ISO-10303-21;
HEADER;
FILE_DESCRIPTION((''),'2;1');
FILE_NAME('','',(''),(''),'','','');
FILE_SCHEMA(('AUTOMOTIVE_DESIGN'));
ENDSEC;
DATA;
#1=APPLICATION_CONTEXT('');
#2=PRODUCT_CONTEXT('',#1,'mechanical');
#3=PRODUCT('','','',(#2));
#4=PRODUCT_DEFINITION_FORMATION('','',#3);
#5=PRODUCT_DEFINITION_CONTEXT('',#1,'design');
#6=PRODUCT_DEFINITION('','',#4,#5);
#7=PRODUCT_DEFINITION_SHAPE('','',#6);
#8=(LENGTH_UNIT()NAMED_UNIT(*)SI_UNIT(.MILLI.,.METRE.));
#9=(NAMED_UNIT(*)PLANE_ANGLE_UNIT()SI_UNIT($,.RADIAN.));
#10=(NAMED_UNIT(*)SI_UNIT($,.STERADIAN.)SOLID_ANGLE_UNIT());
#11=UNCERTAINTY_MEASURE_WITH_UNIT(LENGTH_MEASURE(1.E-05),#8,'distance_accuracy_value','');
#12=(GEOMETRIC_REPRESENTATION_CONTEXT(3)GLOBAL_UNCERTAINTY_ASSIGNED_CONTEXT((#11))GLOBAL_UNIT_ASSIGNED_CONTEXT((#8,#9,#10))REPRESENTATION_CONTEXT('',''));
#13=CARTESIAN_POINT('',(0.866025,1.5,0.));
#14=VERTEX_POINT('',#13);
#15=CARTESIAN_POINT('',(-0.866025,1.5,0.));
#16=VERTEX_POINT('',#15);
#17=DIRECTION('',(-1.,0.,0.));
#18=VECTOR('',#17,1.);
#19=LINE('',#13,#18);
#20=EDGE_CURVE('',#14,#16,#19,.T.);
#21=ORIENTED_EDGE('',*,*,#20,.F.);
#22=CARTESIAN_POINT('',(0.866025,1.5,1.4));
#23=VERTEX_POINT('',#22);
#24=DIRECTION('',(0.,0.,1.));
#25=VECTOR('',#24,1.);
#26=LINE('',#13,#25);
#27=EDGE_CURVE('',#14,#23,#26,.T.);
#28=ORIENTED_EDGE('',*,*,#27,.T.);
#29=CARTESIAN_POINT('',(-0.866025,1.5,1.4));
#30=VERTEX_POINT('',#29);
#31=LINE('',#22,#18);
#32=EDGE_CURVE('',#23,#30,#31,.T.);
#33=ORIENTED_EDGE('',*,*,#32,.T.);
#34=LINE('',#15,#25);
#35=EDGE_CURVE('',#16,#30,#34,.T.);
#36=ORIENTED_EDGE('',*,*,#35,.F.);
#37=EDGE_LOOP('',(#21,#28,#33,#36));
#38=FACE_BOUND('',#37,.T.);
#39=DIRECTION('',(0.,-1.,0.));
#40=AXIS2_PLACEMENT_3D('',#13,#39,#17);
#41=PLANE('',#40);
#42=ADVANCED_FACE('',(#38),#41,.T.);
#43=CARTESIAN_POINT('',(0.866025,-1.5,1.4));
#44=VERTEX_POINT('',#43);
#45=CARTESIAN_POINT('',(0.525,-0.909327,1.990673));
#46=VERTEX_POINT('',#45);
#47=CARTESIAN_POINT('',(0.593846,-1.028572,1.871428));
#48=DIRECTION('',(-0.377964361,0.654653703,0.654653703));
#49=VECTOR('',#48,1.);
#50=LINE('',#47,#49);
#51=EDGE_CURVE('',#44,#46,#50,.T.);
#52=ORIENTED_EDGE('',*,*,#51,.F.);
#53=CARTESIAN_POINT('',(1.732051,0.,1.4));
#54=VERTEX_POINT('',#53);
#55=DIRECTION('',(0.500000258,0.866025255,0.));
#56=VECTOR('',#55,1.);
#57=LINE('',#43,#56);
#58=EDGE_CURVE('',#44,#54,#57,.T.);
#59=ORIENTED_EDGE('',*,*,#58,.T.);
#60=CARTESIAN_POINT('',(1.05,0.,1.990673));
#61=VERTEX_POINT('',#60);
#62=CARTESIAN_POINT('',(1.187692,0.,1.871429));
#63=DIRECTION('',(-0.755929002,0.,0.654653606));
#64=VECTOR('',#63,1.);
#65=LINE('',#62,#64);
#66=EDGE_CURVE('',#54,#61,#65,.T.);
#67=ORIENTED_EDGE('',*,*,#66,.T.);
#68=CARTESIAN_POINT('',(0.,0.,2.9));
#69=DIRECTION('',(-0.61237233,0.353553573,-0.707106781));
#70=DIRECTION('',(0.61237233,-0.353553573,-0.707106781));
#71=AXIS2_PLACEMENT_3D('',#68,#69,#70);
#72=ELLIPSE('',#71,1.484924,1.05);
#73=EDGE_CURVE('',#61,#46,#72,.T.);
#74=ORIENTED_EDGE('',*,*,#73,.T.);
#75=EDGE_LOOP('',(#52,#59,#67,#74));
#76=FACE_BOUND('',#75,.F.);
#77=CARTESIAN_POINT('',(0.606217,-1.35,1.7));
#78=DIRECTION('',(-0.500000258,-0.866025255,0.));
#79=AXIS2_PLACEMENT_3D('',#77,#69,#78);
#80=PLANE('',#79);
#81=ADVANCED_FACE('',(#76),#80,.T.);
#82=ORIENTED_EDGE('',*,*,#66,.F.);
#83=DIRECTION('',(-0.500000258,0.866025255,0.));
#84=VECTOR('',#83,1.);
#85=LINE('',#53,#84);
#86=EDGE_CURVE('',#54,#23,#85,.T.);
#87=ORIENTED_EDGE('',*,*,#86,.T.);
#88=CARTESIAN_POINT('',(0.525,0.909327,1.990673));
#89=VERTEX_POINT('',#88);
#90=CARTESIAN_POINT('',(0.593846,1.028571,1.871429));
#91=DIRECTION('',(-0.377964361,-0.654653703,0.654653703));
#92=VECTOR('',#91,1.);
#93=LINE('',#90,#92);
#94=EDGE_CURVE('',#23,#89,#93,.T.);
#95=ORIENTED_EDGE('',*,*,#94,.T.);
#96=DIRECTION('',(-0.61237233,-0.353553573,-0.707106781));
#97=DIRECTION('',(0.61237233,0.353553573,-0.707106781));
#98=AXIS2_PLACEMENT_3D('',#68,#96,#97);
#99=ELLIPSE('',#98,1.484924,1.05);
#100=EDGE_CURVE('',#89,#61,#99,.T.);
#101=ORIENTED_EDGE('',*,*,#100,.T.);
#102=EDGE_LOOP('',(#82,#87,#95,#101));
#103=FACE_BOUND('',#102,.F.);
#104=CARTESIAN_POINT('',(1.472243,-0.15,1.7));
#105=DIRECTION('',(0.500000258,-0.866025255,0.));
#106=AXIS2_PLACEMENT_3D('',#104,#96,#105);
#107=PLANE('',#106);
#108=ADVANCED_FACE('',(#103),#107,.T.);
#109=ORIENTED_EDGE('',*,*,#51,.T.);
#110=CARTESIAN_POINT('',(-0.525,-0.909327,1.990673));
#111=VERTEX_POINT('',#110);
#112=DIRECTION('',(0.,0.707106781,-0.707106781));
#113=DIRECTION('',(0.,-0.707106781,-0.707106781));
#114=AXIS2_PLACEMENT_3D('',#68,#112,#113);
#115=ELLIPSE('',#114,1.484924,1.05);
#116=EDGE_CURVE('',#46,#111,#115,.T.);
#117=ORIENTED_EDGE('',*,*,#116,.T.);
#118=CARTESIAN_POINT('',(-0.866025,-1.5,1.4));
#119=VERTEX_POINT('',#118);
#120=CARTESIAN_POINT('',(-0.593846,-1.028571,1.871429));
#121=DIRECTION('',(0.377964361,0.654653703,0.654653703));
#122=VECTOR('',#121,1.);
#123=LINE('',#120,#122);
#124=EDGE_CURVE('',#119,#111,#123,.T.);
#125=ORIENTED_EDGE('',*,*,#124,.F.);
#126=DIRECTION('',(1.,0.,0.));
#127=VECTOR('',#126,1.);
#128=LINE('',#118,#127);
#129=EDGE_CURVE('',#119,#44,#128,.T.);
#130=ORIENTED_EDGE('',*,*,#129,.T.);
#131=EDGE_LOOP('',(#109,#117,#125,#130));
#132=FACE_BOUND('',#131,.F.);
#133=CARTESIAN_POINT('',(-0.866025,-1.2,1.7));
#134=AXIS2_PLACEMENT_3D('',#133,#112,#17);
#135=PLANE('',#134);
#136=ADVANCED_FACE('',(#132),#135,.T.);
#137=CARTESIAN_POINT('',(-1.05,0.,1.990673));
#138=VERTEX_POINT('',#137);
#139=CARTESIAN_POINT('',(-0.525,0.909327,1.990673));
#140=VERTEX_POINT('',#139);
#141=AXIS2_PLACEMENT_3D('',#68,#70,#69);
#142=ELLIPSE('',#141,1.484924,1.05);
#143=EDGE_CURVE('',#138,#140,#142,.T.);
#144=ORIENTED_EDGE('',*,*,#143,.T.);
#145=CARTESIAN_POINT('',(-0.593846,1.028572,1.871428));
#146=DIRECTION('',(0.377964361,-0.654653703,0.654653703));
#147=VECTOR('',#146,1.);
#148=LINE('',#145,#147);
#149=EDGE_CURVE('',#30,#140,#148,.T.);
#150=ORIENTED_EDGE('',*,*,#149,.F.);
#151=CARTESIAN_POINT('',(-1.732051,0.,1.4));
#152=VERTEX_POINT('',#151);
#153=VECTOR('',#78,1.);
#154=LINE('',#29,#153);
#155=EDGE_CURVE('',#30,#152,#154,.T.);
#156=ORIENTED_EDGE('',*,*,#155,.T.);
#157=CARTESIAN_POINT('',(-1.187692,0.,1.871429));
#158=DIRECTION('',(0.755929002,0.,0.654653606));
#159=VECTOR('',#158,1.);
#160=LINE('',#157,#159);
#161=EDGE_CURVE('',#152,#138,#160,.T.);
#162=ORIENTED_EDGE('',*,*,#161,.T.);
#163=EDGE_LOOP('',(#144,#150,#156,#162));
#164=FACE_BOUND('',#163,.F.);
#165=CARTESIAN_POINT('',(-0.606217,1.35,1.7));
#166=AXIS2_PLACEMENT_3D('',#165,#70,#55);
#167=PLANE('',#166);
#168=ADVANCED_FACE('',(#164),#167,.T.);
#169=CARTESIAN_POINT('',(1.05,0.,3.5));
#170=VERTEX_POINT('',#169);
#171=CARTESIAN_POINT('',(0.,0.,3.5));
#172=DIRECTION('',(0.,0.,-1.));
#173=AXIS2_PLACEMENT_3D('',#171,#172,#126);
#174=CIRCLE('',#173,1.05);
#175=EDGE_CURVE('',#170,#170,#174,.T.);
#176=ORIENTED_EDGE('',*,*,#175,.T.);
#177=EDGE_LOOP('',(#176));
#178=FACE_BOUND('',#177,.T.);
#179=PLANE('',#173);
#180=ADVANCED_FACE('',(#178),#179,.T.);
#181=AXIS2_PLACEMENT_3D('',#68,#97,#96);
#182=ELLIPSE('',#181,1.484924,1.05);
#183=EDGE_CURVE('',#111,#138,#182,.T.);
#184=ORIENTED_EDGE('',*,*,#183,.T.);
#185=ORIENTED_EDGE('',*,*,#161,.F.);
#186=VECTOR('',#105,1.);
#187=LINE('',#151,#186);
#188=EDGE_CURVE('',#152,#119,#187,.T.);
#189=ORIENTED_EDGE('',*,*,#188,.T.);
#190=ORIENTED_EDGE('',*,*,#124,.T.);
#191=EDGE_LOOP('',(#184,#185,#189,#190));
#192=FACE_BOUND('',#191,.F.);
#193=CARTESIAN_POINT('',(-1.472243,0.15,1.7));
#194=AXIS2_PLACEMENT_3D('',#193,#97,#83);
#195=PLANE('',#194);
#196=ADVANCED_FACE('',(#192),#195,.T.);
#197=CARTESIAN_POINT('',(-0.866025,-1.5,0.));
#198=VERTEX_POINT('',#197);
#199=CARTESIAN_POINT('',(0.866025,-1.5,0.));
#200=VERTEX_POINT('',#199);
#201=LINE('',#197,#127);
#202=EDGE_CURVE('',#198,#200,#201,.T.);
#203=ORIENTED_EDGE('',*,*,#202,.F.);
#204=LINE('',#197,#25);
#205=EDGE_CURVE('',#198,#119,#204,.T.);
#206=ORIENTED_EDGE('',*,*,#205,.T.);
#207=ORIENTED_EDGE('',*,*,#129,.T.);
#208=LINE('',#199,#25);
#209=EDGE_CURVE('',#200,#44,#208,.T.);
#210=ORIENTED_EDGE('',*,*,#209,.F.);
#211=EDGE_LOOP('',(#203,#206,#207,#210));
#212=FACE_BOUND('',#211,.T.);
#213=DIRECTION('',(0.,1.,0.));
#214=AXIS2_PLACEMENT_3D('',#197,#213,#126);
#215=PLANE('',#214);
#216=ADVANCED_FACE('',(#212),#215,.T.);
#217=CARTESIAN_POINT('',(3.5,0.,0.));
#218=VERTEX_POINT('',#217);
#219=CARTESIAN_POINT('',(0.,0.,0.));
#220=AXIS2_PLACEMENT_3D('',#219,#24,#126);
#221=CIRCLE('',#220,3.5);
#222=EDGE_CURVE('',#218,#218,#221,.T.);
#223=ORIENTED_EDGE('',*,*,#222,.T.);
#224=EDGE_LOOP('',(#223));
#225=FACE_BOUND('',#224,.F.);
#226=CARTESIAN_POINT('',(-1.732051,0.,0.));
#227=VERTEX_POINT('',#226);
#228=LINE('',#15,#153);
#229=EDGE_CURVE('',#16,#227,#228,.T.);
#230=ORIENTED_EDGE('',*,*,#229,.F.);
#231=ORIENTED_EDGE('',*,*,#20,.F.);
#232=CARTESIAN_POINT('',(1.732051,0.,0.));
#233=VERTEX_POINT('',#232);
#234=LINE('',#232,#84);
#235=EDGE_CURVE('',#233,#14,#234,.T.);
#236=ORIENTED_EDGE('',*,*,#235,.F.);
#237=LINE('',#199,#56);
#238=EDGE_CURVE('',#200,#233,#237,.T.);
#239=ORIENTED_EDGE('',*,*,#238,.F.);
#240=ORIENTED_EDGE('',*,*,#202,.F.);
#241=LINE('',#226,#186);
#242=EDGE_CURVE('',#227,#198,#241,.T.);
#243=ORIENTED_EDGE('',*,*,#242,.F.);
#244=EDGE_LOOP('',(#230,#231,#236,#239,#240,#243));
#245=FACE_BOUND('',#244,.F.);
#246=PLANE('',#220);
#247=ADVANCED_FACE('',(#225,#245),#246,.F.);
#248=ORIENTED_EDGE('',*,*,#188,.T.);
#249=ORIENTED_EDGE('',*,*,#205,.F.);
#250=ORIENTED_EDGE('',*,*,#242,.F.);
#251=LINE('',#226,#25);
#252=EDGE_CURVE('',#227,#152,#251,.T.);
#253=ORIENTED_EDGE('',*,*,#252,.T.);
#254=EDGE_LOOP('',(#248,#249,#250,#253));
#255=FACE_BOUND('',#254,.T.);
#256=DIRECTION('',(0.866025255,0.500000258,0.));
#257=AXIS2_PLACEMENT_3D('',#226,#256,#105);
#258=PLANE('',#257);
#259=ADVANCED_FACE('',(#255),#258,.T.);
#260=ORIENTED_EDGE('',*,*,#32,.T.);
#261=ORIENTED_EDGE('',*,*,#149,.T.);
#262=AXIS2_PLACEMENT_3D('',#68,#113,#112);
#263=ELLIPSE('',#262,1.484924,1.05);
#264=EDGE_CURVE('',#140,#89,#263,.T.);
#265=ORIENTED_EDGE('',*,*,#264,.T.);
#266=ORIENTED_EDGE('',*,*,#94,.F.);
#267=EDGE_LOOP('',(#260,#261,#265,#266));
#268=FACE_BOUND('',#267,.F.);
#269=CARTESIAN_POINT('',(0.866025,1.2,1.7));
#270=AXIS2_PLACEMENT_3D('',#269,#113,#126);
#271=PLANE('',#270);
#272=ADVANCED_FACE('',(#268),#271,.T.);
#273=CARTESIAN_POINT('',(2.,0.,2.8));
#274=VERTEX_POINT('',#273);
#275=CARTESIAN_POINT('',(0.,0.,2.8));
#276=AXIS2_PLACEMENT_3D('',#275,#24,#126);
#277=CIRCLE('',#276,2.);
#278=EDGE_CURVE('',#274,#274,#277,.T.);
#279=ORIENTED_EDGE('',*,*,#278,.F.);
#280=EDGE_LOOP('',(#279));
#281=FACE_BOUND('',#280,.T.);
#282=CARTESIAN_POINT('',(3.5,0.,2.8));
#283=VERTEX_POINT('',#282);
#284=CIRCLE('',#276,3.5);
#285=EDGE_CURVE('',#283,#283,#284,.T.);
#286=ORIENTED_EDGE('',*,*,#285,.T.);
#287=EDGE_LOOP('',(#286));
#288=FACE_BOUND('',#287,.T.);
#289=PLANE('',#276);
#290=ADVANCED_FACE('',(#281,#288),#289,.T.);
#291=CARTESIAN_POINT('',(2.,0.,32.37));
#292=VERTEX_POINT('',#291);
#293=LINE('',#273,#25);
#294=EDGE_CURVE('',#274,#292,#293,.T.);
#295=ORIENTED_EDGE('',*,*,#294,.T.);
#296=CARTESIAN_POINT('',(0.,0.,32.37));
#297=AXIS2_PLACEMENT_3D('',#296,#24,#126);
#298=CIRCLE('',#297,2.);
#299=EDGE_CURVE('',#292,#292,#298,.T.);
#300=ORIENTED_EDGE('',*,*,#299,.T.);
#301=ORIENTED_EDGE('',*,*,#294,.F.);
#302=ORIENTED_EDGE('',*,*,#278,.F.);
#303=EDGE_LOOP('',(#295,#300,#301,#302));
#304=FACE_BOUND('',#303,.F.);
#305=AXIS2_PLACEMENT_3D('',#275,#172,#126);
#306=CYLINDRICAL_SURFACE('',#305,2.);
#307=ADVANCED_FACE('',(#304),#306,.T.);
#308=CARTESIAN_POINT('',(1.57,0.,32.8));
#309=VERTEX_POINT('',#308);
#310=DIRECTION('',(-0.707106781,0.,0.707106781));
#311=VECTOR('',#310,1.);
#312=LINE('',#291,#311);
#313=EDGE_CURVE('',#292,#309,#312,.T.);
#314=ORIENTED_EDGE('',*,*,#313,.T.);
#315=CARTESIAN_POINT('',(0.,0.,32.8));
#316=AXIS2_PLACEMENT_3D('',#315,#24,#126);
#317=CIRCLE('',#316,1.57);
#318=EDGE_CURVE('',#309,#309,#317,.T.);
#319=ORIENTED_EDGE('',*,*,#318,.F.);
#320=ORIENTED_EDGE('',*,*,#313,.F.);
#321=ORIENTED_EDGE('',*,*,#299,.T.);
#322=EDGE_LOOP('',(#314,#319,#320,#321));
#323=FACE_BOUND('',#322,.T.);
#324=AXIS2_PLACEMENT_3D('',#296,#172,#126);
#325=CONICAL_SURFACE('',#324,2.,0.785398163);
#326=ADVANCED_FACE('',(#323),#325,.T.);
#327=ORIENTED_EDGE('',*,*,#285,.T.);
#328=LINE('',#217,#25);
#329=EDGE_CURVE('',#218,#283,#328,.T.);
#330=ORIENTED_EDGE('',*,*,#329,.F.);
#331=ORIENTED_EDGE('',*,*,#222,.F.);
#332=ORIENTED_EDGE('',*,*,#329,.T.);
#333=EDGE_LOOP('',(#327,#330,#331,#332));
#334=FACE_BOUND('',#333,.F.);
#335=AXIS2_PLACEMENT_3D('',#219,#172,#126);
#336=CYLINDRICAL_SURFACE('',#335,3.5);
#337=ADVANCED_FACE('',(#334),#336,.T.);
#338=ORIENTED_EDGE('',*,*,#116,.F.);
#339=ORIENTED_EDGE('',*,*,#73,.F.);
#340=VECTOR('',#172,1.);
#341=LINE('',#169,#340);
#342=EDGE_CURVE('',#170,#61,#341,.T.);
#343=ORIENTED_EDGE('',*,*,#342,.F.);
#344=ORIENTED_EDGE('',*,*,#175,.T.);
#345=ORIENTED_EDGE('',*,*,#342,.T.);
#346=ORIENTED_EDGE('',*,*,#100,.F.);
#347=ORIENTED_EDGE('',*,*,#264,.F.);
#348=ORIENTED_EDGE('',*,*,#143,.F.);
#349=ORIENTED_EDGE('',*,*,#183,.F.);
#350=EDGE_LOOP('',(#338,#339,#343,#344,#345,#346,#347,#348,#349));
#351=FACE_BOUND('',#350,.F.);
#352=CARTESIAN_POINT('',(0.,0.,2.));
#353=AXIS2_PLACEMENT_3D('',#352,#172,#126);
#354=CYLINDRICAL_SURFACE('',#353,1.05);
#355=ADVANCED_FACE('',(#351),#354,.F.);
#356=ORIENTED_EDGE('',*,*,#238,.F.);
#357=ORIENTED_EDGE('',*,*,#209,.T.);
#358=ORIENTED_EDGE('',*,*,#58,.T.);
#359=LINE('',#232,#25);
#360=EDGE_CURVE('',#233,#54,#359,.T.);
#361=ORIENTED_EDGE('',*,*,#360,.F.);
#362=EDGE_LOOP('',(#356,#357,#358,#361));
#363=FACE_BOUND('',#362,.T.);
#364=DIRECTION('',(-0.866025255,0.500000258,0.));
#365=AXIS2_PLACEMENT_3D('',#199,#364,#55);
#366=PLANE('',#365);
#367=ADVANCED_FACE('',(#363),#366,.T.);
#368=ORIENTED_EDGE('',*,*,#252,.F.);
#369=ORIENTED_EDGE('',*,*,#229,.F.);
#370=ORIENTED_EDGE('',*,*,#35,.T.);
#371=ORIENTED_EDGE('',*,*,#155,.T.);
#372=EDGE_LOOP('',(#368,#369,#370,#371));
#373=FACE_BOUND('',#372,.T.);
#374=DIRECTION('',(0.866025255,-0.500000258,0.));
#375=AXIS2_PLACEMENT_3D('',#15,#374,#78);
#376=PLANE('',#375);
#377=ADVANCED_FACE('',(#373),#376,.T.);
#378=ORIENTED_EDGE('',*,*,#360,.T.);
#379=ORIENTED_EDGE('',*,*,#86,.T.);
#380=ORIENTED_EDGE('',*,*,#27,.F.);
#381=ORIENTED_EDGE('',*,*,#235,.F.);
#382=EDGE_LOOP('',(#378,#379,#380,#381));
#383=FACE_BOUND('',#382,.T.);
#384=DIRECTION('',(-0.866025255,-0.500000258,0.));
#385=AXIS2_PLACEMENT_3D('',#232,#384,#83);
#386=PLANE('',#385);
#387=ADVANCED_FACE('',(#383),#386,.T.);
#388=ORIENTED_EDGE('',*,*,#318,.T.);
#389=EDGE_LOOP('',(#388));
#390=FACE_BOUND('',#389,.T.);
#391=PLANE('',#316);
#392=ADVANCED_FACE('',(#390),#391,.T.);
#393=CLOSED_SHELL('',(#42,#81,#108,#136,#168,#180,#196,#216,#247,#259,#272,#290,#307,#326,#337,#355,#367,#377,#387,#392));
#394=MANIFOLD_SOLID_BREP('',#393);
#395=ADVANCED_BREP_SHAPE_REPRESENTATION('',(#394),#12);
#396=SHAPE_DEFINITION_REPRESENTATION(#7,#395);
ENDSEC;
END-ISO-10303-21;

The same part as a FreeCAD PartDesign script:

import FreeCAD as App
import Part
import Sketcher
from FreeCAD import Vector
Q = App.Units.Quantity


def edges_at(feature, points):
    """Names of the edges that pass closest to the given points."""
    edges = feature.Shape.Edges
    near = lambda p: min(range(len(edges)), key=lambda i: edges[i].distToShape(Part.Vertex(*p))[0])
    return sorted({f"Edge{near(p) + 1}" for p in points})


def add_polygon(sketch, points):
    """Adds a closed chain of lines whose ends are joined by coincident constraints."""
    first, n = sketch.GeometryCount, len(points)
    for a, b in zip(points, points[1:] + points[:1]):
        sketch.addGeometry(Part.LineSegment(App.Vector(*a, 0), App.Vector(*b, 0)), False)
    for i in range(n):
        sketch.addConstraint(Sketcher.Constraint("Coincident", first + i, 2, first + (i + 1) % n, 1))

doc = App.newDocument("Part")
params = doc.addObject("Spreadsheet::Sheet", "Params")
for row, (alias, value) in enumerate([
    ("sketch1_diameter", "7 mm"),
    ("pad1_length", "2.8 mm"),
    ("sketch2_diameter", "4 mm"),
    ("pad2_length", "30 mm"),
    ("chamfer_size", "0.43 mm"),
    ("pocket1_length", "2 mm"),
    ("chamfer2_size", "0.6 mm"),
    ("sketch4_diameter", "2.1 mm"),
    ("pocket2_length", "3 mm"),
], start=1):
    params.set(f"A{row}", alias)
    params.set(f"B{row}", "=" + value)
    params.setAlias(f"B{row}", alias)

body = doc.addObject("PartDesign::Body", "Body")

# Sketch on XY plane
sketch1 = body.newObject("Sketcher::SketchObject", "Sketch")
sketch1.AttachmentSupport = (doc.getObject("XY_Plane"), [""])
sketch1.MapMode = "FlatFace"
sketch1.addGeometry(Part.Circle(Vector(0, 0, 0), Vector(0, 0, 1), 3.5), False)
sketch1.addConstraint([
    Sketcher.Constraint("Coincident", 0, 3, -1, 1),
    Sketcher.Constraint("Diameter", 0, Q("7 mm")),
])
sketch1.setExpression("Constraints[1]", "Params.sketch1_diameter")
pad1 = body.newObject("PartDesign::Pad", "Pad")
pad1.Profile = sketch1
pad1.setExpression("Length", "Params.pad1_length")

# Sketch on XY plane
sketch2 = body.newObject("Sketcher::SketchObject", "Sketch001")
sketch2.AttachmentSupport = (doc.getObject("XY_Plane"), [""])
sketch2.MapMode = "FlatFace"
sketch2.AttachmentOffset = App.Placement(Vector(0, 0, 2.8), App.Rotation())
sketch2.addGeometry(Part.Circle(Vector(0, 0, 0), Vector(0, 0, 1), 2), False)
sketch2.addConstraint([
    Sketcher.Constraint("Coincident", 0, 3, -1, 1),
    Sketcher.Constraint("Diameter", 0, Q("4 mm")),
])
sketch2.setExpression("Constraints[1]", "Params.sketch2_diameter")
pad2 = body.newObject("PartDesign::Pad", "Pad001")
pad2.Profile = sketch2
pad2.setExpression("Length", "Params.pad2_length")
doc.recompute()

chamfer = body.newObject("PartDesign::Chamfer", "Chamfer")
chamfer.Base = (pad2, edges_at(pad2, [(-2, 0, 32.8)]))
chamfer.setExpression("Size", "Params.chamfer_size")

# Sketch on XY plane
sketch3 = body.newObject("Sketcher::SketchObject", "Sketch002")
sketch3.AttachmentSupport = (doc.getObject("XY_Plane"), [""])
sketch3.MapMode = "FlatFace"
add_polygon(sketch3, [(0.9, -1.5), (-0.9, -1.5), (-1.7, 0), (-0.9, 1.5), (0.9, 1.5), (1.7, 0)])  # lines 0-5
sketch3.addConstraint([
    Sketcher.Constraint("Horizontal", 0),
    Sketcher.Constraint("Horizontal", 3),
    Sketcher.Constraint("Symmetric", 0, 2, 3, 2, -1, 1),
    Sketcher.Constraint("Symmetric", 1, 2, 4, 2, -1, 1),
    Sketcher.Constraint("PointOnObject", 1, 2, -1),
    Sketcher.Constraint("Parallel", 2, 5),
    Sketcher.Constraint("Vertical", 0, 2, 2, 2),
    Sketcher.Constraint("Angle", 1, Q("120.000017 deg")),
    Sketcher.Constraint("DistanceY", 0, 2, 2, 2, Q("3 mm")),
    Sketcher.Constraint("DistanceX", 0, 2, 0, 1, Q("1.73205 mm")),
])
pocket1 = body.newObject("PartDesign::Pocket", "Pocket")
pocket1.Profile = sketch3
pocket1.setExpression("Length", "Params.pocket1_length")
pocket1.Reversed = True
doc.recompute()

chamfer2 = body.newObject("PartDesign::Chamfer", "Chamfer001")
chamfer2.Base = (pocket1, edges_at(pocket1, [
    (0, -1.5, 2),
    (1.299, -0.75, 2),
    (1.299, 0.75, 2),
    (0, 1.5, 2),
    (-1.299, 0.75, 2),
    (-1.299, -0.75, 2),
]))
chamfer2.setExpression("Size", "Params.chamfer2_size")

# Sketch on XY plane
sketch4 = body.newObject("Sketcher::SketchObject", "Sketch003")
sketch4.AttachmentSupport = (doc.getObject("XY_Plane"), [""])
sketch4.MapMode = "FlatFace"
sketch4.AttachmentOffset = App.Placement(Vector(0, 0, 2), App.Rotation())
sketch4.addGeometry(Part.Circle(Vector(0, 0, 0), Vector(0, 0, 1), 1.1), False)
sketch4.addConstraint([
    Sketcher.Constraint("Coincident", 0, 3, -1, 1),
    Sketcher.Constraint("Diameter", 0, Q("2.1 mm")),
])
sketch4.setExpression("Constraints[1]", "Params.sketch4_diameter")
pocket2 = body.newObject("PartDesign::Pocket", "Pocket001")
pocket2.Profile = sketch4
pocket2.setExpression("Length", "Params.pocket2_length")
pocket2.Midplane = True

doc.recompute()
